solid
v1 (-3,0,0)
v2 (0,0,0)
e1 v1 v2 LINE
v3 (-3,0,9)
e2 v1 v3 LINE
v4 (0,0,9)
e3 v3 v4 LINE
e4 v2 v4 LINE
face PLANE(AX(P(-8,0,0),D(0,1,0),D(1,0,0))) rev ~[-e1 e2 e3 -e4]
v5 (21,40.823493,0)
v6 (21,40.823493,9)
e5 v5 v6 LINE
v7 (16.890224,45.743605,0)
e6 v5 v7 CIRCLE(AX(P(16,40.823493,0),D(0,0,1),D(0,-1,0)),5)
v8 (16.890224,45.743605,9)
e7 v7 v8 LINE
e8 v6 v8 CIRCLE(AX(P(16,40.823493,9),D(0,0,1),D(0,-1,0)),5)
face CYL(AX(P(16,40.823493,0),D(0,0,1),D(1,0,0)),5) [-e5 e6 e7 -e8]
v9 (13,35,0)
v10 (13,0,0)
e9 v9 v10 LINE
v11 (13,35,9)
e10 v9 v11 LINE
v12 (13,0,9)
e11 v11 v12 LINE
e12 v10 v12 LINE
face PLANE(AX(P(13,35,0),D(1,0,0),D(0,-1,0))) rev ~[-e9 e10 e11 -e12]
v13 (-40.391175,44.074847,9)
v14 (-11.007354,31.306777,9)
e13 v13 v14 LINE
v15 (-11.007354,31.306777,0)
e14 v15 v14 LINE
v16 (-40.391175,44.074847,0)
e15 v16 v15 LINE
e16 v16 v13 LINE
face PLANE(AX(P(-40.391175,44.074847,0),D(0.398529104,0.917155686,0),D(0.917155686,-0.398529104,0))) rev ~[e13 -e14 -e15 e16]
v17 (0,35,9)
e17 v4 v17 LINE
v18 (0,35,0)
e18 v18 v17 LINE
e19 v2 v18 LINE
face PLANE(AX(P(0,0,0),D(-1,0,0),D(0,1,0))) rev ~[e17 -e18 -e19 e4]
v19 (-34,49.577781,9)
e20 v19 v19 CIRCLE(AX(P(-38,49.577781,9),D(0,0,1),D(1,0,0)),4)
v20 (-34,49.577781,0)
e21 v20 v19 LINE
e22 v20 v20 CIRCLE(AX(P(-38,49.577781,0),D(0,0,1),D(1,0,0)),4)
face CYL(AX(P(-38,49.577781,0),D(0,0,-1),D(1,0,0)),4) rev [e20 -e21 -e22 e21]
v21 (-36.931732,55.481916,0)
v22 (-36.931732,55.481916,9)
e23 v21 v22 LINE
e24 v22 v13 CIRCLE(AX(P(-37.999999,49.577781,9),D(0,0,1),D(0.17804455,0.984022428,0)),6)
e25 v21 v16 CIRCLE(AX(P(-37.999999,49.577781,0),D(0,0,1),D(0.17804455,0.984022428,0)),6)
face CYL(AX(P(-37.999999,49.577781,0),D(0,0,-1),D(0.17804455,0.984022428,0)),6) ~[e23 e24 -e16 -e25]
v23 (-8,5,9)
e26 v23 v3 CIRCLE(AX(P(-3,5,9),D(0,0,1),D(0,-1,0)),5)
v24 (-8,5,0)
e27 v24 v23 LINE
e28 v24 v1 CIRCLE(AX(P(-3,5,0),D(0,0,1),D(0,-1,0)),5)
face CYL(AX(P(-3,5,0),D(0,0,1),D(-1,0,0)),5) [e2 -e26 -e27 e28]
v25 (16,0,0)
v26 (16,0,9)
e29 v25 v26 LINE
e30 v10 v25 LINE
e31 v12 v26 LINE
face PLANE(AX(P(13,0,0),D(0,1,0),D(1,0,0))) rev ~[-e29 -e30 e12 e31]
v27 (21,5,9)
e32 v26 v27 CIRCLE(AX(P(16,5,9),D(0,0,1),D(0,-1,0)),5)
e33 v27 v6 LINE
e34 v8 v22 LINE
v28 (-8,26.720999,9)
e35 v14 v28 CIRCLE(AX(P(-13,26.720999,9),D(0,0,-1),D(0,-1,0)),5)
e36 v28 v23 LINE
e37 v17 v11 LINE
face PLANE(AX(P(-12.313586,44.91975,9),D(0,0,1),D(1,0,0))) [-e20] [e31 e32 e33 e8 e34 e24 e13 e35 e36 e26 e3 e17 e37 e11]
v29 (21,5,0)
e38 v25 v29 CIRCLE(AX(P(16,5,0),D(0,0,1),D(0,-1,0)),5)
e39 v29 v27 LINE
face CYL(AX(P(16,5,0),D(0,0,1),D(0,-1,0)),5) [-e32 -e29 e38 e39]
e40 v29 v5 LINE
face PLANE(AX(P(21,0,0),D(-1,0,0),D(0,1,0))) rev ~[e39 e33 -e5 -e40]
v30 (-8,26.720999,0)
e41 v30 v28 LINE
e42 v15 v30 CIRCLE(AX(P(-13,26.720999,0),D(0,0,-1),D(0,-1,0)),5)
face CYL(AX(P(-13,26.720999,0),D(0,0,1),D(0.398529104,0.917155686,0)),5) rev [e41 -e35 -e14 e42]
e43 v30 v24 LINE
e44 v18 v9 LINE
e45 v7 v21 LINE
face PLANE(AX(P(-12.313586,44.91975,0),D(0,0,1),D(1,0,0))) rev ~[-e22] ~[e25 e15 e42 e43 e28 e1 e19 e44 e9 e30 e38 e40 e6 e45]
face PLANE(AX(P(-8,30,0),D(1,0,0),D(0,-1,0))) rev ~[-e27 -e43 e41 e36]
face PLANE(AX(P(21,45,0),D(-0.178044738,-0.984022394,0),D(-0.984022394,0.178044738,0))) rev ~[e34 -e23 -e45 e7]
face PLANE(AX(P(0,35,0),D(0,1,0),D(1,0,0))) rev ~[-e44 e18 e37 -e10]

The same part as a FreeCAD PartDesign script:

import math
import FreeCAD as App
import Part
import Sketcher
from FreeCAD import Vector


def edges_at(feature, points):
    """Names of the edges that pass closest to the given points."""
    edges = feature.Shape.Edges
    near = lambda p: min(range(len(edges)), key=lambda i: edges[i].distToShape(Part.Vertex(*p))[0])
    return sorted({f"Edge{near(p) + 1}" for p in points})

doc = App.newDocument("Part")
params = doc.addObject("Spreadsheet::Sheet", "Params")
for row, (alias, value) in enumerate([
    ("sketch1_diameter", "8 mm"),
    ("sketch1_radius", "6 mm"),
    ("sketch1_width", "8 mm"),
    ("sketch1_width2", "13 mm"),
    ("sketch1_width3", "8 mm"),
    ("pad1_length", "9 mm"),
    ("fillet_radius", "5 mm"),
], start=1):
    params.set(f"A{row}", alias)
    params.set(f"B{row}", "=" + value)
    params.setAlias(f"B{row}", alias)

body = doc.addObject("PartDesign::Body", "Body")

sketch1 = body.newObject("Sketcher::SketchObject", "Sketch")
sketch1.AttachmentSupport = (doc.getObject("XY_Plane"), [""])
sketch1.MapMode = "FlatFace"
sketch1.addGeometry([
    Part.LineSegment(Vector(-40.391175, 44.074847, 0), Vector(-8, 30, 0)),
    Part.LineSegment(Vector(-8, 30, 0), Vector(-8, 0, 0)),
    Part.LineSegment(Vector(-8, 0, 0), Vector(0, 0, 0)),
    Part.LineSegment(Vector(0, 0, 0), Vector(0, 35, 0)),
    Part.LineSegment(Vector(0, 35, 0), Vector(13, 35, 0)),
    Part.LineSegment(Vector(13, 35, 0), Vector(13, 0, 0)),
    Part.LineSegment(Vector(13, 0, 0), Vector(21, 0, 0)),
    Part.LineSegment(Vector(21, 0, 0), Vector(21, 45, 0)),
    Part.LineSegment(Vector(21, 45, 0), Vector(-36.931732, 55.481916, 0)),
    Part.ArcOfCircle(Part.Circle(Vector(-37.999999, 49.577781, 0), Vector(0, 0, 1), 6), math.radians(79.744119), math.radians(246.513733)),
    Part.Circle(Vector(-38, 49.577781, 0), Vector(0, 0, 1), 4),
], False)
sketch1.addConstraint([
    Sketcher.Constraint("Coincident", 0, 2, 1, 1),
    Sketcher.Constraint("Coincident", 1, 2, 2, 1),
    Sketcher.Constraint("Coincident", 2, 2, 3, 1),
    Sketcher.Constraint("Coincident", 3, 2, 4, 1),
    Sketcher.Constraint("Coincident", 4, 2, 5, 1),
    Sketcher.Constraint("Coincident", 5, 2, 6, 1),
    Sketcher.Constraint("Coincident", 6, 2, 7, 1),
    Sketcher.Constraint("Coincident", 7, 2, 8, 1),
    Sketcher.Constraint("Coincident", 8, 2, 9, 1),
    Sketcher.Constraint("Coincident", 9, 2, 0, 1),
    Sketcher.Constraint("Vertical", 1),
    Sketcher.Constraint("Horizontal", 2),
    Sketcher.Constraint("Vertical", 3),
    Sketcher.Constraint("Horizontal", 4),
    Sketcher.Constraint("Vertical", 5),
    Sketcher.Constraint("Horizontal", 6),
    Sketcher.Constraint("Vertical", 7),
    Sketcher.Constraint("Coincident", 2, 2, -1, 1),
    Sketcher.Constraint("Coincident", 10, 3, 9, 3),
    Sketcher.Constraint("PointOnObject", 5, 2, -1),
    Sketcher.Constraint("Diameter", 10, 8.0),
    Sketcher.Constraint("Radius", 9, 6.0),
    Sketcher.Constraint("DistanceX", 2, 1, 2, 2, 8.0),
    Sketcher.Constraint("DistanceX", 4, 1, 4, 2, 13.0),
    Sketcher.Constraint("DistanceX", 6, 1, 6, 2, 8.0),
    Sketcher.Constraint("DistanceY", 1, 2, 1, 1, 30.0),
    Sketcher.Constraint("DistanceY", 3, 1, 3, 2, 35.0),
    Sketcher.Constraint("DistanceY", 7, 1, 7, 2, 45.0),
    Sketcher.Constraint("DistanceX", 9, 3, -1, 1, 37.999999),
    Sketcher.Constraint("Distance", 8, 58.872372),
    Sketcher.Constraint("DistanceY", -1, 1, 9, 3, 49.577781),
    Sketcher.Constraint("DistanceY", 9, 2, 8, 2, 11.407069),
])
sketch1.setExpression("Constraints[20]", "Params.sketch1_diameter")
sketch1.setExpression("Constraints[21]", "Params.sketch1_radius")
sketch1.setExpression("Constraints[22]", "Params.sketch1_width")
sketch1.setExpression("Constraints[23]", "Params.sketch1_width2")
sketch1.setExpression("Constraints[24]", "Params.sketch1_width3")
pad1 = body.newObject("PartDesign::Pad", "Pad")
pad1.Profile = sketch1
pad1.setExpression("Length", "Params.pad1_length")
doc.recompute()

fillet = body.newObject("PartDesign::Fillet", "Fillet")
fillet.Base = (pad1, edges_at(pad1, [
    (-8, 30, 4.5),
    (21, 45, 4.5),
    (-8, 0, 4.5),
    (21, 0, 4.5),
]))
fillet.setExpression("Radius", "Params.fillet_radius")

doc.recompute()
